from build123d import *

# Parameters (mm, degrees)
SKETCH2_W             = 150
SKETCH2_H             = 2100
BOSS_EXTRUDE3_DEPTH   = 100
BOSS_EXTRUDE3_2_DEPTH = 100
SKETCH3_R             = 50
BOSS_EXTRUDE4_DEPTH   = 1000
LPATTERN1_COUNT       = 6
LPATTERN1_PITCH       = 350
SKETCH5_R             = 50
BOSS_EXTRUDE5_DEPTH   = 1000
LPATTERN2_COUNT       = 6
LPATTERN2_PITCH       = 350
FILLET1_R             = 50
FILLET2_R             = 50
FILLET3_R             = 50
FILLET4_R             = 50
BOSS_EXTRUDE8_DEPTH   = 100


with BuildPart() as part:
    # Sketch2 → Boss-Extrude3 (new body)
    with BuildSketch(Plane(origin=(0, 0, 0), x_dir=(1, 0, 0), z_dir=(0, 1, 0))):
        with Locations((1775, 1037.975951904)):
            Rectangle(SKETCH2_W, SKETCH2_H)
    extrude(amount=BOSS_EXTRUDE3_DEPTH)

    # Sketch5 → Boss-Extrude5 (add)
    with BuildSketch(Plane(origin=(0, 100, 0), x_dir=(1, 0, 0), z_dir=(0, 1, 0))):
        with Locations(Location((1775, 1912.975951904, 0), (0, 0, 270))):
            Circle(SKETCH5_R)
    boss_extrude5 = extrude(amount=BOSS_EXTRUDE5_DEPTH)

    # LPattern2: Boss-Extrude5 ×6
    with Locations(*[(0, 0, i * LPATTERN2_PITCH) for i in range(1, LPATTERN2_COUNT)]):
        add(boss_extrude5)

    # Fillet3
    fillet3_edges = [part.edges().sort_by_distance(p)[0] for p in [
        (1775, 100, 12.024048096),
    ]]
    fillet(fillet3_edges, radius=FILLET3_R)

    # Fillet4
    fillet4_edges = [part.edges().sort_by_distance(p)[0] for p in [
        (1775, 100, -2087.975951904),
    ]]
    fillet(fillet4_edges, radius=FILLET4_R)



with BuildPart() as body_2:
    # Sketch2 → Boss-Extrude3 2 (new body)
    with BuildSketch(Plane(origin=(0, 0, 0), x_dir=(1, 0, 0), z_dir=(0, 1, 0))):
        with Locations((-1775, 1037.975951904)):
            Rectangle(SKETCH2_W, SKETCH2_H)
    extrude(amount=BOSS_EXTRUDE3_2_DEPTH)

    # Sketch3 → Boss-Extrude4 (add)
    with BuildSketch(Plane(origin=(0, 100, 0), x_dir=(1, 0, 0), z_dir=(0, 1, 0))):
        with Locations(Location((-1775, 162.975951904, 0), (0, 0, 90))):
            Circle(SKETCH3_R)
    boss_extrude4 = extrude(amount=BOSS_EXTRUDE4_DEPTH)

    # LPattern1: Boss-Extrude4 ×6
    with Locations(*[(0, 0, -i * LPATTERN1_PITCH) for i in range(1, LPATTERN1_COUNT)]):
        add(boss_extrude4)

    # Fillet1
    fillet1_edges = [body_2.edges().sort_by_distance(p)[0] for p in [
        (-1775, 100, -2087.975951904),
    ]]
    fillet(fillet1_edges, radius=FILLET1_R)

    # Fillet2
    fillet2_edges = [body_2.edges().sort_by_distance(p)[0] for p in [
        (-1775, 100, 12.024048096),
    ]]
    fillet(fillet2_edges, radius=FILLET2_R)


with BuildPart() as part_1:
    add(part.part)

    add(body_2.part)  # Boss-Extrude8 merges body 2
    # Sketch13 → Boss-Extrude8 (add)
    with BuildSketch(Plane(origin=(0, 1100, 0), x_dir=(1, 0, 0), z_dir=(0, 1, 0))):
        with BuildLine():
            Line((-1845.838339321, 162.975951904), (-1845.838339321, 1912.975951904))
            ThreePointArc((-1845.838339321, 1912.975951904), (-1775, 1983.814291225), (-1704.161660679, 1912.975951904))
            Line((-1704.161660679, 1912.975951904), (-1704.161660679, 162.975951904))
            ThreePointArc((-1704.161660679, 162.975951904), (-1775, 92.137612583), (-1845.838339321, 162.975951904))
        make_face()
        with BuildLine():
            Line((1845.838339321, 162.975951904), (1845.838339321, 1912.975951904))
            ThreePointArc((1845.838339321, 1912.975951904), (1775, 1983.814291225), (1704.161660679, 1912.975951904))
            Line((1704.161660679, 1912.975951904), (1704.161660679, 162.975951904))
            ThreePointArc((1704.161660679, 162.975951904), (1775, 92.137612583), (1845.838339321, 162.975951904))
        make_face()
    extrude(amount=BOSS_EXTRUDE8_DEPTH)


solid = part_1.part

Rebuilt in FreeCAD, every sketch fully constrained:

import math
import FreeCAD as App
import Part
import Sketcher
Q = App.Units.Quantity


def edges_at(feature, points):
    """Names of the edges that pass closest to the given points."""
    edges = feature.Shape.Edges
    near = lambda p: min(range(len(edges)), key=lambda i: edges[i].distToShape(Part.Vertex(*p))[0])
    return sorted({f"Edge{near(p) + 1}" for p in points})


def add_polygon(sketch, points):
    """Adds a closed chain of lines whose ends are joined by coincident constraints."""
    first, n = sketch.GeometryCount, len(points)
    for a, b in zip(points, points[1:] + points[:1]):
        sketch.addGeometry(Part.LineSegment(App.Vector(*a, 0), App.Vector(*b, 0)), False)
    for i in range(n):
        sketch.addConstraint(Sketcher.Constraint("Coincident", first + i, 2, first + (i + 1) % n, 1))

doc = App.newDocument("Part")
body = doc.addObject("PartDesign::Body", "Body")

sketch1 = body.newObject("Sketcher::SketchObject", "Sketch")
sketch1.AttachmentSupport = (doc.getObject("XZ_Plane"), [""])
sketch1.MapMode = "FlatFace"
add_polygon(sketch1, [(1700, -2087.975952), (1700, 12.024048), (1850, 12.024048), (1850, -2087.975952)])
sketch1.addConstraint(Sketcher.Constraint("Vertical", 0))
sketch1.addConstraint(Sketcher.Constraint("Horizontal", 1))
sketch1.addConstraint(Sketcher.Constraint("Vertical", 2))
sketch1.addConstraint(Sketcher.Constraint("Horizontal", 3))
sketch1.addConstraint(Sketcher.Constraint("DistanceX", 1, 1, 1, 2, Q("150 mm")))
sketch1.addConstraint(Sketcher.Constraint("DistanceY", 0, 1, 0, 2, Q("2100 mm")))
sketch1.addConstraint(Sketcher.Constraint("DistanceX", -1, 1, 0, 2, Q("1700 mm")))
sketch1.addConstraint(Sketcher.Constraint("DistanceY", -1, 1, 0, 2, Q("12.024048 mm")))
pad1 = body.newObject("PartDesign::Pad", "Pad")
pad1.Profile = sketch1
pad1.Length = 100
pad1.Reversed = True

sketch2 = body.newObject("Sketcher::SketchObject", "Sketch001")
sketch2.AttachmentSupport = (doc.getObject("XZ_Plane"), [""])
sketch2.MapMode = "FlatFace"
sketch2.AttachmentOffset = App.Placement(App.Vector(0, 0, -100), App.Rotation())
sketch2.addGeometry(Part.Circle(App.Vector(1775, -1912.975952, 0), App.Vector(0, 0, 1), 50), False)
sketch2.addConstraint(Sketcher.Constraint("Diameter", 0, Q("100 mm")))
sketch2.addConstraint(Sketcher.Constraint("DistanceX", -1, 1, 0, 3, Q("1775 mm")))
sketch2.addConstraint(Sketcher.Constraint("DistanceY", 0, 3, -1, 1, Q("1912.975952 mm")))
pad2 = body.newObject("PartDesign::Pad", "Pad001")
pad2.Profile = sketch2
pad2.Length = 1000
pad2.Reversed = True
doc.recompute()

linearpattern = body.newObject("PartDesign::LinearPattern", "LinearPattern")
linearpattern.Originals = [pad2]
linearpattern.Direction = (doc.getObject("Z_Axis"), [""])
linearpattern.Mode = "offset"
linearpattern.Offset = 350
linearpattern.Occurrences = 6
body.Tip = linearpattern
doc.recompute()

fillet = body.newObject("PartDesign::Fillet", "Fillet")
fillet.Base = (linearpattern, edges_at(linearpattern, [(1775, 100, 12.024)]))
fillet.Radius = 50
doc.recompute()

fillet2 = body.newObject("PartDesign::Fillet", "Fillet001")
fillet2.Base = (fillet, edges_at(fillet, [(1775, 100, -2087.976)]))
fillet2.Radius = 50
body2 = doc.addObject("PartDesign::Body", "Body001")

sketch3 = body2.newObject("Sketcher::SketchObject", "Sketch002")
sketch3.AttachmentSupport = (doc.getObject("XZ_Plane001"), [""])
sketch3.MapMode = "FlatFace"
add_polygon(sketch3, [(-1850, -2087.975952), (-1850, 12.024048), (-1700, 12.024048), (-1700, -2087.975952)])
sketch3.addConstraint(Sketcher.Constraint("Vertical", 0))
sketch3.addConstraint(Sketcher.Constraint("Horizontal", 1))
sketch3.addConstraint(Sketcher.Constraint("Vertical", 2))
sketch3.addConstraint(Sketcher.Constraint("Horizontal", 3))
sketch3.addConstraint(Sketcher.Constraint("DistanceX", 1, 1, 1, 2, Q("150 mm")))
sketch3.addConstraint(Sketcher.Constraint("DistanceY", 0, 1, 0, 2, Q("2100 mm")))
sketch3.addConstraint(Sketcher.Constraint("DistanceX", 0, 2, -1, 1, Q("1850 mm")))
sketch3.addConstraint(Sketcher.Constraint("DistanceY", -1, 1, 0, 2, Q("12.024048 mm")))
pad3 = body2.newObject("PartDesign::Pad", "Pad002")
pad3.Profile = sketch3
pad3.Length = 100
pad3.Reversed = True

sketch4 = body2.newObject("Sketcher::SketchObject", "Sketch003")
sketch4.AttachmentSupport = (doc.getObject("XZ_Plane001"), [""])
sketch4.MapMode = "FlatFace"
sketch4.AttachmentOffset = App.Placement(App.Vector(0, 0, -100), App.Rotation())
sketch4.addGeometry(Part.Circle(App.Vector(-1775, -162.975952, 0), App.Vector(0, 0, 1), 50), False)
sketch4.addConstraint(Sketcher.Constraint("Diameter", 0, Q("100 mm")))
sketch4.addConstraint(Sketcher.Constraint("DistanceX", 0, 3, -1, 1, Q("1775 mm")))
sketch4.addConstraint(Sketcher.Constraint("DistanceY", 0, 3, -1, 1, Q("162.975952 mm")))
pad4 = body2.newObject("PartDesign::Pad", "Pad003")
pad4.Profile = sketch4
pad4.Length = 1000
pad4.Reversed = True
doc.recompute()

linearpattern2 = body2.newObject("PartDesign::LinearPattern", "LinearPattern001")
linearpattern2.Originals = [pad4]
linearpattern2.Direction = (doc.getObject("Z_Axis001"), [""])
linearpattern2.Mode = "offset"
linearpattern2.Offset = 350
linearpattern2.Occurrences = 6
linearpattern2.Reversed = True
body2.Tip = linearpattern2
doc.recompute()

fillet3 = body2.newObject("PartDesign::Fillet", "Fillet002")
fillet3.Base = (linearpattern2, edges_at(linearpattern2, [(-1775, 100, -2087.976)]))
fillet3.Radius = 50
doc.recompute()

fillet4 = body2.newObject("PartDesign::Fillet", "Fillet003")
fillet4.Base = (fillet3, edges_at(fillet3, [(-1775, 100, 12.024)]))
fillet4.Radius = 50
body.AllowCompound = True
doc.recompute()

boolean = body.newObject("PartDesign::Boolean", "Boolean")
boolean.Type = "Fuse"
boolean.addObjects([body2])

sketch5 = body.newObject("Sketcher::SketchObject", "Sketch004")
sketch5.AttachmentSupport = (doc.getObject("XZ_Plane"), [""])
sketch5.MapMode = "FlatFace"
sketch5.AttachmentOffset = App.Placement(App.Vector(0, 0, -1100), App.Rotation())
sketch5.addGeometry(Part.LineSegment(App.Vector(-1845.838339, -1912.975952, 0), App.Vector(-1845.838339, -162.975952, 0)), False)
sketch5.addGeometry(Part.ArcOfCircle(Part.Circle(App.Vector(-1775, -162.975952, 0), App.Vector(0, 0, 1), 70.838339), math.radians(0), math.radians(180)), False)
sketch5.addGeometry(Part.LineSegment(App.Vector(-1704.161661, -162.975952, 0), App.Vector(-1704.161661, -1912.975952, 0)), False)
sketch5.addGeometry(Part.ArcOfCircle(Part.Circle(App.Vector(-1775, -1912.975952, 0), App.Vector(0, 0, 1), 70.838339), math.radians(180), math.radians(360)), False)
sketch5.addGeometry(Part.LineSegment(App.Vector(1845.838339, -162.975952, 0), App.Vector(1845.838339, -1912.975952, 0)), False)
sketch5.addGeometry(Part.ArcOfCircle(Part.Circle(App.Vector(1775, -1912.975952, 0), App.Vector(0, 0, 1), 70.838339), math.radians(180), math.radians(360)), False)
sketch5.addGeometry(Part.LineSegment(App.Vector(1704.161661, -1912.975952, 0), App.Vector(1704.161661, -162.975952, 0)), False)
sketch5.addGeometry(Part.ArcOfCircle(Part.Circle(App.Vector(1775, -162.975952, 0), App.Vector(0, 0, 1), 70.838339), math.radians(0), math.radians(180)), False)
sketch5.addConstraint(Sketcher.Constraint("Tangent", 0, 2, 1, 2))
sketch5.addConstraint(Sketcher.Constraint("Tangent", 1, 1, 2, 1))
sketch5.addConstraint(Sketcher.Constraint("Tangent", 2, 2, 3, 2))
sketch5.addConstraint(Sketcher.Constraint("Tangent", 3, 1, 0, 1))
sketch5.addConstraint(Sketcher.Constraint("Tangent", 4, 2, 5, 2))
sketch5.addConstraint(Sketcher.Constraint("Tangent", 5, 1, 6, 1))
sketch5.addConstraint(Sketcher.Constraint("Tangent", 6, 2, 7, 2))
sketch5.addConstraint(Sketcher.Constraint("Tangent", 7, 1, 4, 1))
sketch5.addConstraint(Sketcher.Constraint("Vertical", 0))
sketch5.addConstraint(Sketcher.Constraint("Vertical", 2))
sketch5.addConstraint(Sketcher.Constraint("Vertical", 4))
sketch5.addConstraint(Sketcher.Constraint("Vertical", 6))
sketch5.addConstraint(Sketcher.Constraint("Equal", 3, 5))
sketch5.addConstraint(Sketcher.Constraint("Symmetric", 3, 3, 5, 3, -2))
sketch5.addConstraint(Sketcher.Constraint("Horizontal", 1, 3, 7, 3))
sketch5.addConstraint(Sketcher.Constraint("DistanceY", 0, 1, 0, 2, Q("1750 mm")))
sketch5.addConstraint(Sketcher.Constraint("DistanceX", 1, 3, -1, 1, Q("1775 mm")))
sketch5.addConstraint(Sketcher.Constraint("Radius", 1, Q("70.838339 mm")))
sketch5.addConstraint(Sketcher.Constraint("DistanceY", 1, 3, -1, 1, Q("162.975952 mm")))
pad5 = body.newObject("PartDesign::Pad", "Pad004")
pad5.Profile = sketch5
pad5.Length = 100
pad5.Reversed = True

doc.recompute()
